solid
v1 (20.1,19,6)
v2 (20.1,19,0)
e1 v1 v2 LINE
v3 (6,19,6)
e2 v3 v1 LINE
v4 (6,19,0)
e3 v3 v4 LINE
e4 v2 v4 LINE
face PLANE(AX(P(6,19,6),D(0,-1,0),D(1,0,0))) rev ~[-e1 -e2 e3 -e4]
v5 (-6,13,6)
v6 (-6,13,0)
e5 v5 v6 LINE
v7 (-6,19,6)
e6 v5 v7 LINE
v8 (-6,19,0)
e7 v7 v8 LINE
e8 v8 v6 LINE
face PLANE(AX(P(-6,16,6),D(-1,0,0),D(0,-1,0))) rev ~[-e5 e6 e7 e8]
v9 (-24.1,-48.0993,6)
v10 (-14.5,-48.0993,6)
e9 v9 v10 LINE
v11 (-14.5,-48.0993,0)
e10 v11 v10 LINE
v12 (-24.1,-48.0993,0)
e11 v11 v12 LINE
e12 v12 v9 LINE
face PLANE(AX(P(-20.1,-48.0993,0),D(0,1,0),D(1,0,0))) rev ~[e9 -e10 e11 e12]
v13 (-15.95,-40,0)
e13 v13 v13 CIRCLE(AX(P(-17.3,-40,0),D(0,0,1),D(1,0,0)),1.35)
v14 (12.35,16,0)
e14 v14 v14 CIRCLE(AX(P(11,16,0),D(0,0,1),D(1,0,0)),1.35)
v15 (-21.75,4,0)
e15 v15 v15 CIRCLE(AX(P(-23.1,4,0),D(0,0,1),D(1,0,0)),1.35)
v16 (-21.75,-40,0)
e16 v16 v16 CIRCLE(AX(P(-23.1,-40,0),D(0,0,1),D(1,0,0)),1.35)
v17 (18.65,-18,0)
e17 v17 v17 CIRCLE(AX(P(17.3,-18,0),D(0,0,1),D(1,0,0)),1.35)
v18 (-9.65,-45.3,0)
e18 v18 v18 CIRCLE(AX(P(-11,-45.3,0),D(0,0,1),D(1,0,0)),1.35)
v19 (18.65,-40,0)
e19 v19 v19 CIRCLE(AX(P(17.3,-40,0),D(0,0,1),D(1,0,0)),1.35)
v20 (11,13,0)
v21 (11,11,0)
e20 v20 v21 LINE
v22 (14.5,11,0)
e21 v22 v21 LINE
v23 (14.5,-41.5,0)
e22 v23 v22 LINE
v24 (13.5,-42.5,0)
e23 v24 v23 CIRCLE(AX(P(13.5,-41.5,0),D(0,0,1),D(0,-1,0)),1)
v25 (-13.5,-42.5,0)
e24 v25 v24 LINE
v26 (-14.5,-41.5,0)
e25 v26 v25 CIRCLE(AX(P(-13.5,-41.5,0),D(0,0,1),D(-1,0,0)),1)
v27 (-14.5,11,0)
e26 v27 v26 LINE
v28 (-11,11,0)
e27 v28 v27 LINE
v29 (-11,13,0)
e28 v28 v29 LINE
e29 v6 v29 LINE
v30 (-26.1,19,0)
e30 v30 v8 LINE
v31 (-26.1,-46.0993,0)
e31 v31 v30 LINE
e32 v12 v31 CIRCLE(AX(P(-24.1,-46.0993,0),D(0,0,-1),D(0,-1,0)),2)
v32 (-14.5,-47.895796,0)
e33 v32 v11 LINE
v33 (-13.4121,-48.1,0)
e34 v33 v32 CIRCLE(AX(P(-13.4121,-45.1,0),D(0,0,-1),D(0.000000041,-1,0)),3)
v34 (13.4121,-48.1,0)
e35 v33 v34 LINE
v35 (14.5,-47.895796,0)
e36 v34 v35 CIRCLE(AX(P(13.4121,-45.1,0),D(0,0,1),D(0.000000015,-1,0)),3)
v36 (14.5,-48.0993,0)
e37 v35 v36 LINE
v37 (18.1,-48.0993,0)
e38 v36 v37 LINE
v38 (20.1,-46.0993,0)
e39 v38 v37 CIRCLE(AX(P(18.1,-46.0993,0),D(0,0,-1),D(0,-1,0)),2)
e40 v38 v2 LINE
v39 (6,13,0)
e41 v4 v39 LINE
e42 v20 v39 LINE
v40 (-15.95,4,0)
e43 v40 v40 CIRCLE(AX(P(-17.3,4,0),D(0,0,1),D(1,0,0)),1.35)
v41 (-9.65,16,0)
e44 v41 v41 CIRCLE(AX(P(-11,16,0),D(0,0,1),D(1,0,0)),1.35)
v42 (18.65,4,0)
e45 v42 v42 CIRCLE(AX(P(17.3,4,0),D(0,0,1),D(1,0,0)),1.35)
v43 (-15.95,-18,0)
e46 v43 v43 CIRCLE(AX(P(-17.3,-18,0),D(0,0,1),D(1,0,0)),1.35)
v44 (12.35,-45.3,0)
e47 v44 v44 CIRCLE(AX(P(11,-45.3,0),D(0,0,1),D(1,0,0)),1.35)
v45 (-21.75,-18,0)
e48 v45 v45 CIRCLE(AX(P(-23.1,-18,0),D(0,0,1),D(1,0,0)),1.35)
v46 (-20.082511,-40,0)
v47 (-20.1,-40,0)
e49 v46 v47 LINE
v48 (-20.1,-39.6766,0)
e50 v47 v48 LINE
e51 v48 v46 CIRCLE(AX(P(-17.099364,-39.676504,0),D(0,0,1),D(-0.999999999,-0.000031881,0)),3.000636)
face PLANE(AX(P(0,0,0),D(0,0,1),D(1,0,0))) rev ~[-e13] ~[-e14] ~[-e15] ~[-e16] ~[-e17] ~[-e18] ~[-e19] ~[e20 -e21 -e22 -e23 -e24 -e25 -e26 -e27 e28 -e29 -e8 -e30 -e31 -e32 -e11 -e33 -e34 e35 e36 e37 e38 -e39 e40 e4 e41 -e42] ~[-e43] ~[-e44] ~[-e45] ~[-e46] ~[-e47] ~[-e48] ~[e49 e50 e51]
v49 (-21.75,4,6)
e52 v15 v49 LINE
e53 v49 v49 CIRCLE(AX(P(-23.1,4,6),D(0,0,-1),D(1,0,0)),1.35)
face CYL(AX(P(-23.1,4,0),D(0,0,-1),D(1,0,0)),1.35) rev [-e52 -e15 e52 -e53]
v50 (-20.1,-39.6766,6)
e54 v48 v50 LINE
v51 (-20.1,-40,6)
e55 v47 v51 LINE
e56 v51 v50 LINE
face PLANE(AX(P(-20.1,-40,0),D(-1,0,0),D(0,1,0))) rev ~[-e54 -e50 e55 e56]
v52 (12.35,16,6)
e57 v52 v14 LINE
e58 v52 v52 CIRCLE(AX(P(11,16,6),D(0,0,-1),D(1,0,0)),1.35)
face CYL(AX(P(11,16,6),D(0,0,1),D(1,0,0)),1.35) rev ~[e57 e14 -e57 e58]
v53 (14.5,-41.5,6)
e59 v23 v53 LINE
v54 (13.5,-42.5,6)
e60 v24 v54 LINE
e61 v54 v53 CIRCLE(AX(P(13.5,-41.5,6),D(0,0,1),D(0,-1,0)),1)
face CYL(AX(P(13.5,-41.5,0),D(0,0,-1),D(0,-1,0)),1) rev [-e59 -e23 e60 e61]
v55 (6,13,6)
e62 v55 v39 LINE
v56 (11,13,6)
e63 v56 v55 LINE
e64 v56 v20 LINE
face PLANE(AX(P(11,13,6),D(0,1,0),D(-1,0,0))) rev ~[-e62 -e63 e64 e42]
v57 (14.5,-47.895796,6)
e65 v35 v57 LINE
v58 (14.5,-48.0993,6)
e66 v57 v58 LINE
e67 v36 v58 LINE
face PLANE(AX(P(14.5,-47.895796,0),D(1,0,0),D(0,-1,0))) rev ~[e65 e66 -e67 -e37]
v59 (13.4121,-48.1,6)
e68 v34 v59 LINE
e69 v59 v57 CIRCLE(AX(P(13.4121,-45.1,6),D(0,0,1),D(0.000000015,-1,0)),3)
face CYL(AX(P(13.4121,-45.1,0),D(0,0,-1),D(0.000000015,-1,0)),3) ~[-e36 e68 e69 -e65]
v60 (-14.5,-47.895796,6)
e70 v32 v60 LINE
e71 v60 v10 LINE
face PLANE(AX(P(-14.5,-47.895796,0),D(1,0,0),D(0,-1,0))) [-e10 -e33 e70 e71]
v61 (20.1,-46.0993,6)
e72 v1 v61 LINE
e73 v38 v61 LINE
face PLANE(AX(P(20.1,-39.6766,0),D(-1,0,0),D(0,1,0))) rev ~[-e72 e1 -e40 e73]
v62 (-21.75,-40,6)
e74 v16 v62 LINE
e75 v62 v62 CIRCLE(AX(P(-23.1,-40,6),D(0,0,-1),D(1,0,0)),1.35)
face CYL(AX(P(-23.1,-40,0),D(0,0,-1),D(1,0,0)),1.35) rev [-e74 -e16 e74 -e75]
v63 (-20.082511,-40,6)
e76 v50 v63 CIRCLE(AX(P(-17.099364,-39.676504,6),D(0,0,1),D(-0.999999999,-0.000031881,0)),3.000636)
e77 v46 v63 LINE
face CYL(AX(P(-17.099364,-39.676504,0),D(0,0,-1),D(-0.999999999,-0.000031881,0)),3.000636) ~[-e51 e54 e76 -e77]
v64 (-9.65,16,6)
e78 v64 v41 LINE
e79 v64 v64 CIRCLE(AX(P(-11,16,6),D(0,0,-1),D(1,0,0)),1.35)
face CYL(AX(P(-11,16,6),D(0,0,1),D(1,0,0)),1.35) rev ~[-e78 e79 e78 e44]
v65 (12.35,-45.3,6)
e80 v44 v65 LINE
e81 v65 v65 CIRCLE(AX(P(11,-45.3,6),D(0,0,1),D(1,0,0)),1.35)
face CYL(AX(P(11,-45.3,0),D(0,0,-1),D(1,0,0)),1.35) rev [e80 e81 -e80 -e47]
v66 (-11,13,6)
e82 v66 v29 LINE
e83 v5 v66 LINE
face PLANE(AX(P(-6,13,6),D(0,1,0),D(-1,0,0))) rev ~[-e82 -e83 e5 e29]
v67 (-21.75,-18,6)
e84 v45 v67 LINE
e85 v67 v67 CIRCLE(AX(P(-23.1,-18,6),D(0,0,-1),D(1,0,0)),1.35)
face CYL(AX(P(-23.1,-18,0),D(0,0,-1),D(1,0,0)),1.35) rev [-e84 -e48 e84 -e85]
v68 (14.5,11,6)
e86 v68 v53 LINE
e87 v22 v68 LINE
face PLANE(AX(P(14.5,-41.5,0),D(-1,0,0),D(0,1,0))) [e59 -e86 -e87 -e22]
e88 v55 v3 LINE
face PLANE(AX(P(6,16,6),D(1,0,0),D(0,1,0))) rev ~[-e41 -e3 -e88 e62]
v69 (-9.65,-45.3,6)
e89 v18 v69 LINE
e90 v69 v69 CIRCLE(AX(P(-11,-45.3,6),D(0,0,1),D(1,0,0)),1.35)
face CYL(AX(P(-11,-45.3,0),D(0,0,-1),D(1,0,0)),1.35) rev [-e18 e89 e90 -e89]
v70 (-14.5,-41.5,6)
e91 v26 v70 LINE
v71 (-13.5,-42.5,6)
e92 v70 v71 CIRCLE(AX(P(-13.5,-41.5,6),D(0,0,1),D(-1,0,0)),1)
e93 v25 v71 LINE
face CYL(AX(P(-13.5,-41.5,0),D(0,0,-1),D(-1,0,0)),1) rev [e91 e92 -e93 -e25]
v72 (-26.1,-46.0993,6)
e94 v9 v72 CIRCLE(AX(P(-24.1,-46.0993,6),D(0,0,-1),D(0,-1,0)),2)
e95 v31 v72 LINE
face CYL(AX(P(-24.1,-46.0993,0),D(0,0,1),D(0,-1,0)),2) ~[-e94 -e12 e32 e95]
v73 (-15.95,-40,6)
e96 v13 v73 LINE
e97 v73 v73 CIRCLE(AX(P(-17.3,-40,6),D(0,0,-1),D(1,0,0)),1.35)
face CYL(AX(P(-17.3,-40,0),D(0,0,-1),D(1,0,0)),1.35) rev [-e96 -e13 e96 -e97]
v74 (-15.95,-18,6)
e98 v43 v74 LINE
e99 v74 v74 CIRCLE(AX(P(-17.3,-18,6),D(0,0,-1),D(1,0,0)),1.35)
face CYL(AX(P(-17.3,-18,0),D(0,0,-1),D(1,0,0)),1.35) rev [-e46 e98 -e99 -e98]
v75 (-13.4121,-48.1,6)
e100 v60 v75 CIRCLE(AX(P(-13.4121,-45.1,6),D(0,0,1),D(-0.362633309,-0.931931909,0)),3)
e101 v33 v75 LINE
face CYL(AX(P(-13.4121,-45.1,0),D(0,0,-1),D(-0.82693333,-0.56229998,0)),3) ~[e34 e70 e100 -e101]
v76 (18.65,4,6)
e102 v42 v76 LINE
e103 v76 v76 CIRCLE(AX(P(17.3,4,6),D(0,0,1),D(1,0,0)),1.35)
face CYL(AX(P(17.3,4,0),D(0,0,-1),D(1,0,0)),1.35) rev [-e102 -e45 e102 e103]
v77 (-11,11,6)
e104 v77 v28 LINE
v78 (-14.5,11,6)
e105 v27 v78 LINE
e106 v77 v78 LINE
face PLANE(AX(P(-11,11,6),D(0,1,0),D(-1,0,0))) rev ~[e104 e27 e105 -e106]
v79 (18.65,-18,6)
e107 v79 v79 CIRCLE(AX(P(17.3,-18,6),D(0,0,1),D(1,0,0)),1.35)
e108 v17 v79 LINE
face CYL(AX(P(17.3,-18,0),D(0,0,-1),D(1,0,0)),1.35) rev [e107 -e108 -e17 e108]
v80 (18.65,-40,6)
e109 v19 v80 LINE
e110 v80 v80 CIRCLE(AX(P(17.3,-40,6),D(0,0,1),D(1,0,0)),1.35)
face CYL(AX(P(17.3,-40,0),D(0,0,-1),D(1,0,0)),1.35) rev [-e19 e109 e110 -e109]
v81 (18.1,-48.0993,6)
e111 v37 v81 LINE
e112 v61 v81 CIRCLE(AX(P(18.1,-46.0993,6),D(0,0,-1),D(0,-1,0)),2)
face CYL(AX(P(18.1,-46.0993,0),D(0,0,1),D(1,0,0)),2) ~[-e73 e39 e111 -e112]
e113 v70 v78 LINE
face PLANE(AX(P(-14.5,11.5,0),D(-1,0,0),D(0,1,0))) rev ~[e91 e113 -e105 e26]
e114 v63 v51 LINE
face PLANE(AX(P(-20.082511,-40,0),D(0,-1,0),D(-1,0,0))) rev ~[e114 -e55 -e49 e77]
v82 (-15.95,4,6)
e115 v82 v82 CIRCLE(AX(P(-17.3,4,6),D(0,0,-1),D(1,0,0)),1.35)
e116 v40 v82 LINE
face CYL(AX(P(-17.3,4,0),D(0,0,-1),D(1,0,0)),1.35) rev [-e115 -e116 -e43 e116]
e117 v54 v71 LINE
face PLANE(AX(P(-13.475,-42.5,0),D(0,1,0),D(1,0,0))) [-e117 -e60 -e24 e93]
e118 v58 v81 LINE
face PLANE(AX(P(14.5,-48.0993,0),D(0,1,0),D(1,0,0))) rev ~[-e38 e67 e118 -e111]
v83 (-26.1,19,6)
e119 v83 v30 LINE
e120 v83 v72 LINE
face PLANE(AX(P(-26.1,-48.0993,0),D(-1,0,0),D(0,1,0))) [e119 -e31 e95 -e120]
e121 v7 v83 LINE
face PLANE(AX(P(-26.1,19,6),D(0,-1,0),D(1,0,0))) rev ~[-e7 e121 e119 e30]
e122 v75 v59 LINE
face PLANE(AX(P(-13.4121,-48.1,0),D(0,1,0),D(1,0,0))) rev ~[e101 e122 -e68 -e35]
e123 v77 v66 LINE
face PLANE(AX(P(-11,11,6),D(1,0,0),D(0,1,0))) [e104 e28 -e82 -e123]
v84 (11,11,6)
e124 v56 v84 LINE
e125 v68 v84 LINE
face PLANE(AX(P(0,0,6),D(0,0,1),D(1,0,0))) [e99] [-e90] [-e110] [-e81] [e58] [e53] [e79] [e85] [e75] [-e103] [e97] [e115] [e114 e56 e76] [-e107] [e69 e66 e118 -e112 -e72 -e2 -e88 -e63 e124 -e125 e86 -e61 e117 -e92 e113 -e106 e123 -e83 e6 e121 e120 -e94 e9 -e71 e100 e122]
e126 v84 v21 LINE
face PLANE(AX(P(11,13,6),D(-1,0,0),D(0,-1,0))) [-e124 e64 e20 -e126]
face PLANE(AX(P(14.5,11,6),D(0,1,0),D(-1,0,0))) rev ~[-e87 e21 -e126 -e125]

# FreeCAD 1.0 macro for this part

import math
import FreeCAD as App
import Part
import Sketcher
from FreeCAD import Vector
Q = App.Units.Quantity


def edges_at(feature, points):
    """Names of the edges that pass closest to the given points."""
    edges = feature.Shape.Edges
    near = lambda p: min(range(len(edges)), key=lambda i: edges[i].distToShape(Part.Vertex(*p))[0])
    return sorted({f"Edge{near(p) + 1}" for p in points})

doc = App.newDocument("Part")
body = doc.addObject("PartDesign::Body", "Body")

sketch1 = body.newObject("Sketcher::SketchObject", "Sketch")
sketch1.AttachmentSupport = (doc.getObject("XY_Plane"), [""])
sketch1.MapMode = "FlatFace"
sketch1.addGeometry([
    Part.LineSegment(Vector(20.1, 13, 0), Vector(14.5, 13, 0)),
    Part.LineSegment(Vector(14.5, 13, 0), Vector(14.5, -41.5, 0)),
    Part.ArcOfCircle(Part.Circle(Vector(13.5, -41.5, 0), Vector(0, 0, 1), 1), math.radians(-90), math.radians(0)),
    Part.LineSegment(Vector(13.5, -42.5, 0), Vector(-13.5, -42.5, 0)),
    Part.ArcOfCircle(Part.Circle(Vector(-13.5, -41.5, 0), Vector(0, 0, 1), 1), math.radians(180), math.radians(270)),
    Part.LineSegment(Vector(-14.5, -41.5, 0), Vector(-14.5, 13, 0)),
    Part.LineSegment(Vector(-14.5, 13, 0), Vector(-26.1, 13, 0)),
    Part.LineSegment(Vector(-26.1, 13, 0), Vector(-26.1, -48.099, 0)),
    Part.LineSegment(Vector(-26.1, -48.099, 0), Vector(-14.5, -48.099, 0)),
    Part.LineSegment(Vector(-14.5, -48.099, 0), Vector(-14.5, -47.896, 0)),
    Part.ArcOfCircle(Part.Circle(Vector(-13.412, -45.1, 0), Vector(0, 0, 1), 3), math.radians(-111), math.radians(-90)),
    Part.LineSegment(Vector(-13.412, -48.1, 0), Vector(13.412, -48.1, 0)),
    Part.ArcOfCircle(Part.Circle(Vector(13.412, -45.1, 0), Vector(0, 0, 1), 3), math.radians(-90), math.radians(-69)),
    Part.LineSegment(Vector(14.5, -47.896, 0), Vector(14.5, -48.099, 0)),
    Part.LineSegment(Vector(14.5, -48.099, 0), Vector(20.1, -48.099, 0)),
    Part.LineSegment(Vector(20.1, -48.099, 0), Vector(20.1, 13, 0)),
    Part.Circle(Vector(17.3, -40, 0), Vector(0, 0, 1), 1.35),
    Part.Circle(Vector(17.3, -18, 0), Vector(0, 0, 1), 1.35),
    Part.Circle(Vector(17.3, 4, 0), Vector(0, 0, 1), 1.35),
    Part.Circle(Vector(11, -45.3, 0), Vector(0, 0, 1), 1.35),
    Part.Circle(Vector(-11, -45.3, 0), Vector(0, 0, 1), 1.35),
    Part.Circle(Vector(-17.3, -40, 0), Vector(0, 0, 1), 1.35),
    Part.Circle(Vector(-17.3, -18, 0), Vector(0, 0, 1), 1.35),
    Part.Circle(Vector(-17.3, 4, 0), Vector(0, 0, 1), 1.35),
    Part.LineSegment(Vector(-20.083, -40, 0), Vector(-20.1, -40, 0)),
    Part.LineSegment(Vector(-20.1, -40, 0), Vector(-20.1, -39.677, 0)),
    Part.ArcOfCircle(Part.Circle(Vector(-17.1, -39.677, 0), Vector(0, 0, 1), 3), math.radians(180), math.radians(186.19)),
    Part.Circle(Vector(-23.1, 4, 0), Vector(0, 0, 1), 1.35),
    Part.Circle(Vector(-23.1, -18, 0), Vector(0, 0, 1), 1.35),
    Part.Circle(Vector(-23.1, -40, 0), Vector(0, 0, 1), 1.35),
], False)
sketch1.addConstraint([
    Sketcher.Constraint("Coincident", 0, 2, 1, 1),
    Sketcher.Constraint("Tangent", 1, 2, 2, 2),
    Sketcher.Constraint("Tangent", 2, 1, 3, 1),
    Sketcher.Constraint("Tangent", 3, 2, 4, 2),
    Sketcher.Constraint("Tangent", 4, 1, 5, 1),
    Sketcher.Constraint("Coincident", 5, 2, 6, 1),
    Sketcher.Constraint("Coincident", 6, 2, 7, 1),
    Sketcher.Constraint("Coincident", 7, 2, 8, 1),
    Sketcher.Constraint("Coincident", 8, 2, 9, 1),
    Sketcher.Constraint("Coincident", 9, 2, 10, 1),
    Sketcher.Constraint("Tangent", 10, 2, 11, 1),
    Sketcher.Constraint("Tangent", 11, 2, 12, 1),
    Sketcher.Constraint("Coincident", 12, 2, 13, 1),
    Sketcher.Constraint("Coincident", 13, 2, 14, 1),
    Sketcher.Constraint("Coincident", 14, 2, 15, 1),
    Sketcher.Constraint("Coincident", 15, 2, 0, 1),
    Sketcher.Constraint("Coincident", 24, 2, 25, 1),
    Sketcher.Constraint("Tangent", 25, 2, 26, 1),
    Sketcher.Constraint("Coincident", 26, 2, 24, 1),
    Sketcher.Constraint("Horizontal", 0),
    Sketcher.Constraint("Vertical", 1),
    Sketcher.Constraint("Horizontal", 3),
    Sketcher.Constraint("Vertical", 5),
    Sketcher.Constraint("Horizontal", 6),
    Sketcher.Constraint("Vertical", 7),
    Sketcher.Constraint("Horizontal", 8),
    Sketcher.Constraint("Vertical", 9),
    Sketcher.Constraint("Horizontal", 11),
    Sketcher.Constraint("Vertical", 13),
    Sketcher.Constraint("Horizontal", 14),
    Sketcher.Constraint("Vertical", 15),
    Sketcher.Constraint("Horizontal", 24),
    Sketcher.Constraint("Vertical", 25),
    Sketcher.Constraint("Equal", 2, 4),
    Sketcher.Constraint("Equal", 10, 12),
    Sketcher.Constraint("Equal", 16, 17),
    Sketcher.Constraint("Equal", 17, 18),
    Sketcher.Constraint("Equal", 18, 19),
    Sketcher.Constraint("Equal", 19, 20),
    Sketcher.Constraint("Equal", 20, 21),
    Sketcher.Constraint("Equal", 21, 22),
    Sketcher.Constraint("Equal", 22, 23),
    Sketcher.Constraint("Equal", 12, 26),
    Sketcher.Constraint("Equal", 23, 27),
    Sketcher.Constraint("Equal", 27, 28),
    Sketcher.Constraint("Equal", 28, 29),
    Sketcher.Constraint("Symmetric", 19, 3, 20, 3, -2),
    Sketcher.Constraint("Symmetric", 16, 3, 21, 3, -2),
    Sketcher.Constraint("Symmetric", 17, 3, 22, 3, -2),
    Sketcher.Constraint("Symmetric", 18, 3, 23, 3, -2),
    Sketcher.Constraint("Symmetric", 0, 2, 5, 2, -2),
    Sketcher.Constraint("Symmetric", 9, 2, 12, 2, -2),
    Sketcher.Constraint("Horizontal", 23, 3, 27, 3),
    Sketcher.Constraint("Horizontal", 22, 3, 28, 3),
    Sketcher.Constraint("Horizontal", 21, 3, 29, 3),
    Sketcher.Constraint("Horizontal", 8, 2, 13, 2),
    Sketcher.Constraint("Horizontal", 29, 3, 24, 2),
    Sketcher.Constraint("Vertical", 16, 3, 17, 3),
    Sketcher.Constraint("Vertical", 17, 3, 18, 3),
    Sketcher.Constraint("Vertical", 27, 3, 28, 3),
    Sketcher.Constraint("Vertical", 28, 3, 29, 3),
    Sketcher.Constraint("Vertical", 5, 2, 8, 2),
    Sketcher.Constraint("Diameter", 16, Q("2.7 mm")),
    Sketcher.Constraint("Radius", 2, Q("1 mm")),
    Sketcher.Constraint("Radius", 10, Q("3 mm")),
    Sketcher.Constraint("DistanceX", 3, 2, 3, 1, Q("27 mm")),
    Sketcher.Constraint("DistanceX", 0, 2, 0, 1, Q("5.6 mm")),
    Sketcher.Constraint("DistanceX", 6, 2, 6, 1, Q("11.6 mm")),
    Sketcher.Constraint("DistanceY", 1, 2, 1, 1, Q("54.5 mm")),
    Sketcher.Constraint("DistanceY", 16, 3, -1, 1, Q("40 mm")),
    Sketcher.Constraint("DistanceY", 17, 3, -1, 1, Q("18 mm")),
    Sketcher.Constraint("DistanceY", -1, 1, 18, 3, Q("4 mm")),
    Sketcher.Constraint("DistanceX", -1, 1, 19, 3, Q("11 mm")),
    Sketcher.Constraint("DistanceY", -1, 1, 0, 2, Q("13 mm")),
    Sketcher.Constraint("DistanceX", 27, 3, 26, 3, Q("6 mm")),
    Sketcher.Constraint("DistanceX", 6, 2, 27, 3, Q("3 mm")),
    Sketcher.Constraint("DistanceY", 10, 3, -1, 1, Q("45.1 mm")),
    Sketcher.Constraint("DistanceX", -1, 1, 16, 3, Q("17.3 mm")),
    Sketcher.Constraint("DistanceY", 19, 3, -1, 1, Q("45.3 mm")),
    Sketcher.Constraint("DistanceX", 11, 1, 11, 2, Q("26.8242 mm")),
    Sketcher.Constraint("DistanceX", 24, 2, 24, 1, Q("0.0175 mm")),
    Sketcher.Constraint("DistanceY", 7, 2, 7, 1, Q("61.0993 mm")),
])
pad1 = body.newObject("PartDesign::Pad", "Pad")
pad1.Profile = sketch1
pad1.Length = 6
doc.recompute()

fillet = body.newObject("PartDesign::Fillet", "Fillet")
fillet.Base = (pad1, edges_at(pad1, [
    (-26.1, -48.099, 3),
    (20.1, -48.099, 3),
    (20.1, 13, 3),
    (14.5, 13, 3),
    (-14.5, 13, 3),
    (-26.1, 13, 3),
]))
fillet.Radius = 2

sketch2 = body.newObject("Sketcher::SketchObject", "Sketch001")
sketch2.AttachmentSupport = (doc.getObject("XY_Plane"), [""])
sketch2.MapMode = "FlatFace"
sketch2.AttachmentOffset = App.Placement(Vector(0, 0, 6), App.Rotation())
sketch2.addGeometry([
    Part.LineSegment(Vector(-11, 11, 0), Vector(-11, 13, 0)),
    Part.LineSegment(Vector(-11, 13, 0), Vector(-6, 13, 0)),
    Part.LineSegment(Vector(-6, 13, 0), Vector(-6, 19, 0)),
    Part.LineSegment(Vector(-6, 19, 0), Vector(-26.1, 19, 0)),
    Part.LineSegment(Vector(-26.1, 19, 0), Vector(-26.1, 11, 0)),
    Part.ArcOfCircle(Part.Circle(Vector(-24.1, 11, 0), Vector(0, 0, 1), 2), math.radians(90), math.radians(180)),
    Part.LineSegment(Vector(-24.1, 13, 0), Vector(-16.5, 13, 0)),
    Part.ArcOfCircle(Part.Circle(Vector(-16.5, 11, 0), Vector(0, 0, 1), 2), math.radians(0), math.radians(90)),
    Part.LineSegment(Vector(-14.5, 11, 0), Vector(-11, 11, 0)),
    Part.Circle(Vector(-11, 16, 0), Vector(0, 0, 1), 1.4),
    Part.LineSegment(Vector(6, 19, 0), Vector(6, 13, 0)),
    Part.LineSegment(Vector(6, 13, 0), Vector(11, 13, 0)),
    Part.LineSegment(Vector(11, 13, 0), Vector(11, 11, 0)),
    Part.LineSegment(Vector(11, 11, 0), Vector(14.5, 11, 0)),
    Part.ArcOfCircle(Part.Circle(Vector(16.5, 11, 0), Vector(0, 0, 1), 2), math.radians(90), math.radians(180)),
    Part.LineSegment(Vector(16.5, 13, 0), Vector(18.1, 13, 0)),
    Part.ArcOfCircle(Part.Circle(Vector(18.1, 11, 0), Vector(0, 0, 1), 2), math.radians(0), math.radians(90)),
    Part.LineSegment(Vector(20.1, 11, 0), Vector(20.1, 19, 0)),
    Part.LineSegment(Vector(20.1, 19, 0), Vector(6, 19, 0)),
    Part.Circle(Vector(11, 16, 0), Vector(0, 0, 1), 1.4),
], False)
sketch2.addConstraint([
    Sketcher.Constraint("Coincident", 0, 2, 1, 1),
    Sketcher.Constraint("Coincident", 1, 2, 2, 1),
    Sketcher.Constraint("Coincident", 2, 2, 3, 1),
    Sketcher.Constraint("Coincident", 3, 2, 4, 1),
    Sketcher.Constraint("Tangent", 4, 2, 5, 2),
    Sketcher.Constraint("Tangent", 5, 1, 6, 1),
    Sketcher.Constraint("Tangent", 6, 2, 7, 2),
    Sketcher.Constraint("Coincident", 7, 1, 8, 1),
    Sketcher.Constraint("Coincident", 8, 2, 0, 1),
    Sketcher.Constraint("Coincident", 10, 2, 11, 1),
    Sketcher.Constraint("Coincident", 11, 2, 12, 1),
    Sketcher.Constraint("Coincident", 12, 2, 13, 1),
    Sketcher.Constraint("Coincident", 13, 2, 14, 2),
    Sketcher.Constraint("Tangent", 14, 1, 15, 1),
    Sketcher.Constraint("Tangent", 15, 2, 16, 2),
    Sketcher.Constraint("Tangent", 16, 1, 17, 1),
    Sketcher.Constraint("Coincident", 17, 2, 18, 1),
    Sketcher.Constraint("Coincident", 18, 2, 10, 1),
    Sketcher.Constraint("Vertical", 0),
    Sketcher.Constraint("Horizontal", 1),
    Sketcher.Constraint("Vertical", 2),
    Sketcher.Constraint("Horizontal", 3),
    Sketcher.Constraint("Vertical", 4),
    Sketcher.Constraint("Horizontal", 6),
    Sketcher.Constraint("Horizontal", 8),
    Sketcher.Constraint("Vertical", 10),
    Sketcher.Constraint("Horizontal", 11),
    Sketcher.Constraint("Vertical", 12),
    Sketcher.Constraint("Horizontal", 13),
    Sketcher.Constraint("Horizontal", 15),
    Sketcher.Constraint("Vertical", 17),
    Sketcher.Constraint("Horizontal", 18),
    Sketcher.Constraint("Equal", 5, 7),
    Sketcher.Constraint("Equal", 7, 14),
    Sketcher.Constraint("Equal", 14, 16),
    Sketcher.Constraint("Equal", 9, 19),
    Sketcher.Constraint("Symmetric", 7, 3, 14, 3, -2),
    Sketcher.Constraint("Symmetric", 9, 3, 19, 3, -2),
    Sketcher.Constraint("Symmetric", 1, 2, 10, 2, -2),
    Sketcher.Constraint("Symmetric", 8, 2, 12, 2, -2),
    Sketcher.Constraint("Horizontal", 1, 2, 5, 1),
    Sketcher.Constraint("Horizontal", 4, 2, 7, 1),
    Sketcher.Constraint("Horizontal", 3, 2, 17, 2),
    Sketcher.Constraint("Vertical", 9, 3, 0, 2),
    Sketcher.Constraint("Diameter", 9, Q("2.7 mm")),
    Sketcher.Constraint("DistanceX", 1, 1, 1, 2, Q("5 mm")),
    Sketcher.Constraint("Radius", 5, Q("2 mm")),
    Sketcher.Constraint("DistanceY", 7, 3, 9, 3, Q("5 mm")),
    Sketcher.Constraint("DistanceY", 2, 1, 2, 2, Q("6 mm")),
    Sketcher.Constraint("DistanceX", 3, 2, 3, 1, Q("20.1 mm")),
    Sketcher.Constraint("DistanceX", 6, 1, 6, 2, Q("7.6 mm")),
    Sketcher.Constraint("DistanceX", 15, 1, 15, 2, Q("1.6 mm")),
    Sketcher.Constraint("DistanceY", -1, 1, 5, 3, Q("11 mm")),
    Sketcher.Constraint("DistanceX", 9, 3, -1, 1, Q("11 mm")),
])
pad2 = body.newObject("PartDesign::Pad", "Pad001")
pad2.Profile = sketch2
pad2.Length = 6
pad2.Reversed = True

doc.recompute()
